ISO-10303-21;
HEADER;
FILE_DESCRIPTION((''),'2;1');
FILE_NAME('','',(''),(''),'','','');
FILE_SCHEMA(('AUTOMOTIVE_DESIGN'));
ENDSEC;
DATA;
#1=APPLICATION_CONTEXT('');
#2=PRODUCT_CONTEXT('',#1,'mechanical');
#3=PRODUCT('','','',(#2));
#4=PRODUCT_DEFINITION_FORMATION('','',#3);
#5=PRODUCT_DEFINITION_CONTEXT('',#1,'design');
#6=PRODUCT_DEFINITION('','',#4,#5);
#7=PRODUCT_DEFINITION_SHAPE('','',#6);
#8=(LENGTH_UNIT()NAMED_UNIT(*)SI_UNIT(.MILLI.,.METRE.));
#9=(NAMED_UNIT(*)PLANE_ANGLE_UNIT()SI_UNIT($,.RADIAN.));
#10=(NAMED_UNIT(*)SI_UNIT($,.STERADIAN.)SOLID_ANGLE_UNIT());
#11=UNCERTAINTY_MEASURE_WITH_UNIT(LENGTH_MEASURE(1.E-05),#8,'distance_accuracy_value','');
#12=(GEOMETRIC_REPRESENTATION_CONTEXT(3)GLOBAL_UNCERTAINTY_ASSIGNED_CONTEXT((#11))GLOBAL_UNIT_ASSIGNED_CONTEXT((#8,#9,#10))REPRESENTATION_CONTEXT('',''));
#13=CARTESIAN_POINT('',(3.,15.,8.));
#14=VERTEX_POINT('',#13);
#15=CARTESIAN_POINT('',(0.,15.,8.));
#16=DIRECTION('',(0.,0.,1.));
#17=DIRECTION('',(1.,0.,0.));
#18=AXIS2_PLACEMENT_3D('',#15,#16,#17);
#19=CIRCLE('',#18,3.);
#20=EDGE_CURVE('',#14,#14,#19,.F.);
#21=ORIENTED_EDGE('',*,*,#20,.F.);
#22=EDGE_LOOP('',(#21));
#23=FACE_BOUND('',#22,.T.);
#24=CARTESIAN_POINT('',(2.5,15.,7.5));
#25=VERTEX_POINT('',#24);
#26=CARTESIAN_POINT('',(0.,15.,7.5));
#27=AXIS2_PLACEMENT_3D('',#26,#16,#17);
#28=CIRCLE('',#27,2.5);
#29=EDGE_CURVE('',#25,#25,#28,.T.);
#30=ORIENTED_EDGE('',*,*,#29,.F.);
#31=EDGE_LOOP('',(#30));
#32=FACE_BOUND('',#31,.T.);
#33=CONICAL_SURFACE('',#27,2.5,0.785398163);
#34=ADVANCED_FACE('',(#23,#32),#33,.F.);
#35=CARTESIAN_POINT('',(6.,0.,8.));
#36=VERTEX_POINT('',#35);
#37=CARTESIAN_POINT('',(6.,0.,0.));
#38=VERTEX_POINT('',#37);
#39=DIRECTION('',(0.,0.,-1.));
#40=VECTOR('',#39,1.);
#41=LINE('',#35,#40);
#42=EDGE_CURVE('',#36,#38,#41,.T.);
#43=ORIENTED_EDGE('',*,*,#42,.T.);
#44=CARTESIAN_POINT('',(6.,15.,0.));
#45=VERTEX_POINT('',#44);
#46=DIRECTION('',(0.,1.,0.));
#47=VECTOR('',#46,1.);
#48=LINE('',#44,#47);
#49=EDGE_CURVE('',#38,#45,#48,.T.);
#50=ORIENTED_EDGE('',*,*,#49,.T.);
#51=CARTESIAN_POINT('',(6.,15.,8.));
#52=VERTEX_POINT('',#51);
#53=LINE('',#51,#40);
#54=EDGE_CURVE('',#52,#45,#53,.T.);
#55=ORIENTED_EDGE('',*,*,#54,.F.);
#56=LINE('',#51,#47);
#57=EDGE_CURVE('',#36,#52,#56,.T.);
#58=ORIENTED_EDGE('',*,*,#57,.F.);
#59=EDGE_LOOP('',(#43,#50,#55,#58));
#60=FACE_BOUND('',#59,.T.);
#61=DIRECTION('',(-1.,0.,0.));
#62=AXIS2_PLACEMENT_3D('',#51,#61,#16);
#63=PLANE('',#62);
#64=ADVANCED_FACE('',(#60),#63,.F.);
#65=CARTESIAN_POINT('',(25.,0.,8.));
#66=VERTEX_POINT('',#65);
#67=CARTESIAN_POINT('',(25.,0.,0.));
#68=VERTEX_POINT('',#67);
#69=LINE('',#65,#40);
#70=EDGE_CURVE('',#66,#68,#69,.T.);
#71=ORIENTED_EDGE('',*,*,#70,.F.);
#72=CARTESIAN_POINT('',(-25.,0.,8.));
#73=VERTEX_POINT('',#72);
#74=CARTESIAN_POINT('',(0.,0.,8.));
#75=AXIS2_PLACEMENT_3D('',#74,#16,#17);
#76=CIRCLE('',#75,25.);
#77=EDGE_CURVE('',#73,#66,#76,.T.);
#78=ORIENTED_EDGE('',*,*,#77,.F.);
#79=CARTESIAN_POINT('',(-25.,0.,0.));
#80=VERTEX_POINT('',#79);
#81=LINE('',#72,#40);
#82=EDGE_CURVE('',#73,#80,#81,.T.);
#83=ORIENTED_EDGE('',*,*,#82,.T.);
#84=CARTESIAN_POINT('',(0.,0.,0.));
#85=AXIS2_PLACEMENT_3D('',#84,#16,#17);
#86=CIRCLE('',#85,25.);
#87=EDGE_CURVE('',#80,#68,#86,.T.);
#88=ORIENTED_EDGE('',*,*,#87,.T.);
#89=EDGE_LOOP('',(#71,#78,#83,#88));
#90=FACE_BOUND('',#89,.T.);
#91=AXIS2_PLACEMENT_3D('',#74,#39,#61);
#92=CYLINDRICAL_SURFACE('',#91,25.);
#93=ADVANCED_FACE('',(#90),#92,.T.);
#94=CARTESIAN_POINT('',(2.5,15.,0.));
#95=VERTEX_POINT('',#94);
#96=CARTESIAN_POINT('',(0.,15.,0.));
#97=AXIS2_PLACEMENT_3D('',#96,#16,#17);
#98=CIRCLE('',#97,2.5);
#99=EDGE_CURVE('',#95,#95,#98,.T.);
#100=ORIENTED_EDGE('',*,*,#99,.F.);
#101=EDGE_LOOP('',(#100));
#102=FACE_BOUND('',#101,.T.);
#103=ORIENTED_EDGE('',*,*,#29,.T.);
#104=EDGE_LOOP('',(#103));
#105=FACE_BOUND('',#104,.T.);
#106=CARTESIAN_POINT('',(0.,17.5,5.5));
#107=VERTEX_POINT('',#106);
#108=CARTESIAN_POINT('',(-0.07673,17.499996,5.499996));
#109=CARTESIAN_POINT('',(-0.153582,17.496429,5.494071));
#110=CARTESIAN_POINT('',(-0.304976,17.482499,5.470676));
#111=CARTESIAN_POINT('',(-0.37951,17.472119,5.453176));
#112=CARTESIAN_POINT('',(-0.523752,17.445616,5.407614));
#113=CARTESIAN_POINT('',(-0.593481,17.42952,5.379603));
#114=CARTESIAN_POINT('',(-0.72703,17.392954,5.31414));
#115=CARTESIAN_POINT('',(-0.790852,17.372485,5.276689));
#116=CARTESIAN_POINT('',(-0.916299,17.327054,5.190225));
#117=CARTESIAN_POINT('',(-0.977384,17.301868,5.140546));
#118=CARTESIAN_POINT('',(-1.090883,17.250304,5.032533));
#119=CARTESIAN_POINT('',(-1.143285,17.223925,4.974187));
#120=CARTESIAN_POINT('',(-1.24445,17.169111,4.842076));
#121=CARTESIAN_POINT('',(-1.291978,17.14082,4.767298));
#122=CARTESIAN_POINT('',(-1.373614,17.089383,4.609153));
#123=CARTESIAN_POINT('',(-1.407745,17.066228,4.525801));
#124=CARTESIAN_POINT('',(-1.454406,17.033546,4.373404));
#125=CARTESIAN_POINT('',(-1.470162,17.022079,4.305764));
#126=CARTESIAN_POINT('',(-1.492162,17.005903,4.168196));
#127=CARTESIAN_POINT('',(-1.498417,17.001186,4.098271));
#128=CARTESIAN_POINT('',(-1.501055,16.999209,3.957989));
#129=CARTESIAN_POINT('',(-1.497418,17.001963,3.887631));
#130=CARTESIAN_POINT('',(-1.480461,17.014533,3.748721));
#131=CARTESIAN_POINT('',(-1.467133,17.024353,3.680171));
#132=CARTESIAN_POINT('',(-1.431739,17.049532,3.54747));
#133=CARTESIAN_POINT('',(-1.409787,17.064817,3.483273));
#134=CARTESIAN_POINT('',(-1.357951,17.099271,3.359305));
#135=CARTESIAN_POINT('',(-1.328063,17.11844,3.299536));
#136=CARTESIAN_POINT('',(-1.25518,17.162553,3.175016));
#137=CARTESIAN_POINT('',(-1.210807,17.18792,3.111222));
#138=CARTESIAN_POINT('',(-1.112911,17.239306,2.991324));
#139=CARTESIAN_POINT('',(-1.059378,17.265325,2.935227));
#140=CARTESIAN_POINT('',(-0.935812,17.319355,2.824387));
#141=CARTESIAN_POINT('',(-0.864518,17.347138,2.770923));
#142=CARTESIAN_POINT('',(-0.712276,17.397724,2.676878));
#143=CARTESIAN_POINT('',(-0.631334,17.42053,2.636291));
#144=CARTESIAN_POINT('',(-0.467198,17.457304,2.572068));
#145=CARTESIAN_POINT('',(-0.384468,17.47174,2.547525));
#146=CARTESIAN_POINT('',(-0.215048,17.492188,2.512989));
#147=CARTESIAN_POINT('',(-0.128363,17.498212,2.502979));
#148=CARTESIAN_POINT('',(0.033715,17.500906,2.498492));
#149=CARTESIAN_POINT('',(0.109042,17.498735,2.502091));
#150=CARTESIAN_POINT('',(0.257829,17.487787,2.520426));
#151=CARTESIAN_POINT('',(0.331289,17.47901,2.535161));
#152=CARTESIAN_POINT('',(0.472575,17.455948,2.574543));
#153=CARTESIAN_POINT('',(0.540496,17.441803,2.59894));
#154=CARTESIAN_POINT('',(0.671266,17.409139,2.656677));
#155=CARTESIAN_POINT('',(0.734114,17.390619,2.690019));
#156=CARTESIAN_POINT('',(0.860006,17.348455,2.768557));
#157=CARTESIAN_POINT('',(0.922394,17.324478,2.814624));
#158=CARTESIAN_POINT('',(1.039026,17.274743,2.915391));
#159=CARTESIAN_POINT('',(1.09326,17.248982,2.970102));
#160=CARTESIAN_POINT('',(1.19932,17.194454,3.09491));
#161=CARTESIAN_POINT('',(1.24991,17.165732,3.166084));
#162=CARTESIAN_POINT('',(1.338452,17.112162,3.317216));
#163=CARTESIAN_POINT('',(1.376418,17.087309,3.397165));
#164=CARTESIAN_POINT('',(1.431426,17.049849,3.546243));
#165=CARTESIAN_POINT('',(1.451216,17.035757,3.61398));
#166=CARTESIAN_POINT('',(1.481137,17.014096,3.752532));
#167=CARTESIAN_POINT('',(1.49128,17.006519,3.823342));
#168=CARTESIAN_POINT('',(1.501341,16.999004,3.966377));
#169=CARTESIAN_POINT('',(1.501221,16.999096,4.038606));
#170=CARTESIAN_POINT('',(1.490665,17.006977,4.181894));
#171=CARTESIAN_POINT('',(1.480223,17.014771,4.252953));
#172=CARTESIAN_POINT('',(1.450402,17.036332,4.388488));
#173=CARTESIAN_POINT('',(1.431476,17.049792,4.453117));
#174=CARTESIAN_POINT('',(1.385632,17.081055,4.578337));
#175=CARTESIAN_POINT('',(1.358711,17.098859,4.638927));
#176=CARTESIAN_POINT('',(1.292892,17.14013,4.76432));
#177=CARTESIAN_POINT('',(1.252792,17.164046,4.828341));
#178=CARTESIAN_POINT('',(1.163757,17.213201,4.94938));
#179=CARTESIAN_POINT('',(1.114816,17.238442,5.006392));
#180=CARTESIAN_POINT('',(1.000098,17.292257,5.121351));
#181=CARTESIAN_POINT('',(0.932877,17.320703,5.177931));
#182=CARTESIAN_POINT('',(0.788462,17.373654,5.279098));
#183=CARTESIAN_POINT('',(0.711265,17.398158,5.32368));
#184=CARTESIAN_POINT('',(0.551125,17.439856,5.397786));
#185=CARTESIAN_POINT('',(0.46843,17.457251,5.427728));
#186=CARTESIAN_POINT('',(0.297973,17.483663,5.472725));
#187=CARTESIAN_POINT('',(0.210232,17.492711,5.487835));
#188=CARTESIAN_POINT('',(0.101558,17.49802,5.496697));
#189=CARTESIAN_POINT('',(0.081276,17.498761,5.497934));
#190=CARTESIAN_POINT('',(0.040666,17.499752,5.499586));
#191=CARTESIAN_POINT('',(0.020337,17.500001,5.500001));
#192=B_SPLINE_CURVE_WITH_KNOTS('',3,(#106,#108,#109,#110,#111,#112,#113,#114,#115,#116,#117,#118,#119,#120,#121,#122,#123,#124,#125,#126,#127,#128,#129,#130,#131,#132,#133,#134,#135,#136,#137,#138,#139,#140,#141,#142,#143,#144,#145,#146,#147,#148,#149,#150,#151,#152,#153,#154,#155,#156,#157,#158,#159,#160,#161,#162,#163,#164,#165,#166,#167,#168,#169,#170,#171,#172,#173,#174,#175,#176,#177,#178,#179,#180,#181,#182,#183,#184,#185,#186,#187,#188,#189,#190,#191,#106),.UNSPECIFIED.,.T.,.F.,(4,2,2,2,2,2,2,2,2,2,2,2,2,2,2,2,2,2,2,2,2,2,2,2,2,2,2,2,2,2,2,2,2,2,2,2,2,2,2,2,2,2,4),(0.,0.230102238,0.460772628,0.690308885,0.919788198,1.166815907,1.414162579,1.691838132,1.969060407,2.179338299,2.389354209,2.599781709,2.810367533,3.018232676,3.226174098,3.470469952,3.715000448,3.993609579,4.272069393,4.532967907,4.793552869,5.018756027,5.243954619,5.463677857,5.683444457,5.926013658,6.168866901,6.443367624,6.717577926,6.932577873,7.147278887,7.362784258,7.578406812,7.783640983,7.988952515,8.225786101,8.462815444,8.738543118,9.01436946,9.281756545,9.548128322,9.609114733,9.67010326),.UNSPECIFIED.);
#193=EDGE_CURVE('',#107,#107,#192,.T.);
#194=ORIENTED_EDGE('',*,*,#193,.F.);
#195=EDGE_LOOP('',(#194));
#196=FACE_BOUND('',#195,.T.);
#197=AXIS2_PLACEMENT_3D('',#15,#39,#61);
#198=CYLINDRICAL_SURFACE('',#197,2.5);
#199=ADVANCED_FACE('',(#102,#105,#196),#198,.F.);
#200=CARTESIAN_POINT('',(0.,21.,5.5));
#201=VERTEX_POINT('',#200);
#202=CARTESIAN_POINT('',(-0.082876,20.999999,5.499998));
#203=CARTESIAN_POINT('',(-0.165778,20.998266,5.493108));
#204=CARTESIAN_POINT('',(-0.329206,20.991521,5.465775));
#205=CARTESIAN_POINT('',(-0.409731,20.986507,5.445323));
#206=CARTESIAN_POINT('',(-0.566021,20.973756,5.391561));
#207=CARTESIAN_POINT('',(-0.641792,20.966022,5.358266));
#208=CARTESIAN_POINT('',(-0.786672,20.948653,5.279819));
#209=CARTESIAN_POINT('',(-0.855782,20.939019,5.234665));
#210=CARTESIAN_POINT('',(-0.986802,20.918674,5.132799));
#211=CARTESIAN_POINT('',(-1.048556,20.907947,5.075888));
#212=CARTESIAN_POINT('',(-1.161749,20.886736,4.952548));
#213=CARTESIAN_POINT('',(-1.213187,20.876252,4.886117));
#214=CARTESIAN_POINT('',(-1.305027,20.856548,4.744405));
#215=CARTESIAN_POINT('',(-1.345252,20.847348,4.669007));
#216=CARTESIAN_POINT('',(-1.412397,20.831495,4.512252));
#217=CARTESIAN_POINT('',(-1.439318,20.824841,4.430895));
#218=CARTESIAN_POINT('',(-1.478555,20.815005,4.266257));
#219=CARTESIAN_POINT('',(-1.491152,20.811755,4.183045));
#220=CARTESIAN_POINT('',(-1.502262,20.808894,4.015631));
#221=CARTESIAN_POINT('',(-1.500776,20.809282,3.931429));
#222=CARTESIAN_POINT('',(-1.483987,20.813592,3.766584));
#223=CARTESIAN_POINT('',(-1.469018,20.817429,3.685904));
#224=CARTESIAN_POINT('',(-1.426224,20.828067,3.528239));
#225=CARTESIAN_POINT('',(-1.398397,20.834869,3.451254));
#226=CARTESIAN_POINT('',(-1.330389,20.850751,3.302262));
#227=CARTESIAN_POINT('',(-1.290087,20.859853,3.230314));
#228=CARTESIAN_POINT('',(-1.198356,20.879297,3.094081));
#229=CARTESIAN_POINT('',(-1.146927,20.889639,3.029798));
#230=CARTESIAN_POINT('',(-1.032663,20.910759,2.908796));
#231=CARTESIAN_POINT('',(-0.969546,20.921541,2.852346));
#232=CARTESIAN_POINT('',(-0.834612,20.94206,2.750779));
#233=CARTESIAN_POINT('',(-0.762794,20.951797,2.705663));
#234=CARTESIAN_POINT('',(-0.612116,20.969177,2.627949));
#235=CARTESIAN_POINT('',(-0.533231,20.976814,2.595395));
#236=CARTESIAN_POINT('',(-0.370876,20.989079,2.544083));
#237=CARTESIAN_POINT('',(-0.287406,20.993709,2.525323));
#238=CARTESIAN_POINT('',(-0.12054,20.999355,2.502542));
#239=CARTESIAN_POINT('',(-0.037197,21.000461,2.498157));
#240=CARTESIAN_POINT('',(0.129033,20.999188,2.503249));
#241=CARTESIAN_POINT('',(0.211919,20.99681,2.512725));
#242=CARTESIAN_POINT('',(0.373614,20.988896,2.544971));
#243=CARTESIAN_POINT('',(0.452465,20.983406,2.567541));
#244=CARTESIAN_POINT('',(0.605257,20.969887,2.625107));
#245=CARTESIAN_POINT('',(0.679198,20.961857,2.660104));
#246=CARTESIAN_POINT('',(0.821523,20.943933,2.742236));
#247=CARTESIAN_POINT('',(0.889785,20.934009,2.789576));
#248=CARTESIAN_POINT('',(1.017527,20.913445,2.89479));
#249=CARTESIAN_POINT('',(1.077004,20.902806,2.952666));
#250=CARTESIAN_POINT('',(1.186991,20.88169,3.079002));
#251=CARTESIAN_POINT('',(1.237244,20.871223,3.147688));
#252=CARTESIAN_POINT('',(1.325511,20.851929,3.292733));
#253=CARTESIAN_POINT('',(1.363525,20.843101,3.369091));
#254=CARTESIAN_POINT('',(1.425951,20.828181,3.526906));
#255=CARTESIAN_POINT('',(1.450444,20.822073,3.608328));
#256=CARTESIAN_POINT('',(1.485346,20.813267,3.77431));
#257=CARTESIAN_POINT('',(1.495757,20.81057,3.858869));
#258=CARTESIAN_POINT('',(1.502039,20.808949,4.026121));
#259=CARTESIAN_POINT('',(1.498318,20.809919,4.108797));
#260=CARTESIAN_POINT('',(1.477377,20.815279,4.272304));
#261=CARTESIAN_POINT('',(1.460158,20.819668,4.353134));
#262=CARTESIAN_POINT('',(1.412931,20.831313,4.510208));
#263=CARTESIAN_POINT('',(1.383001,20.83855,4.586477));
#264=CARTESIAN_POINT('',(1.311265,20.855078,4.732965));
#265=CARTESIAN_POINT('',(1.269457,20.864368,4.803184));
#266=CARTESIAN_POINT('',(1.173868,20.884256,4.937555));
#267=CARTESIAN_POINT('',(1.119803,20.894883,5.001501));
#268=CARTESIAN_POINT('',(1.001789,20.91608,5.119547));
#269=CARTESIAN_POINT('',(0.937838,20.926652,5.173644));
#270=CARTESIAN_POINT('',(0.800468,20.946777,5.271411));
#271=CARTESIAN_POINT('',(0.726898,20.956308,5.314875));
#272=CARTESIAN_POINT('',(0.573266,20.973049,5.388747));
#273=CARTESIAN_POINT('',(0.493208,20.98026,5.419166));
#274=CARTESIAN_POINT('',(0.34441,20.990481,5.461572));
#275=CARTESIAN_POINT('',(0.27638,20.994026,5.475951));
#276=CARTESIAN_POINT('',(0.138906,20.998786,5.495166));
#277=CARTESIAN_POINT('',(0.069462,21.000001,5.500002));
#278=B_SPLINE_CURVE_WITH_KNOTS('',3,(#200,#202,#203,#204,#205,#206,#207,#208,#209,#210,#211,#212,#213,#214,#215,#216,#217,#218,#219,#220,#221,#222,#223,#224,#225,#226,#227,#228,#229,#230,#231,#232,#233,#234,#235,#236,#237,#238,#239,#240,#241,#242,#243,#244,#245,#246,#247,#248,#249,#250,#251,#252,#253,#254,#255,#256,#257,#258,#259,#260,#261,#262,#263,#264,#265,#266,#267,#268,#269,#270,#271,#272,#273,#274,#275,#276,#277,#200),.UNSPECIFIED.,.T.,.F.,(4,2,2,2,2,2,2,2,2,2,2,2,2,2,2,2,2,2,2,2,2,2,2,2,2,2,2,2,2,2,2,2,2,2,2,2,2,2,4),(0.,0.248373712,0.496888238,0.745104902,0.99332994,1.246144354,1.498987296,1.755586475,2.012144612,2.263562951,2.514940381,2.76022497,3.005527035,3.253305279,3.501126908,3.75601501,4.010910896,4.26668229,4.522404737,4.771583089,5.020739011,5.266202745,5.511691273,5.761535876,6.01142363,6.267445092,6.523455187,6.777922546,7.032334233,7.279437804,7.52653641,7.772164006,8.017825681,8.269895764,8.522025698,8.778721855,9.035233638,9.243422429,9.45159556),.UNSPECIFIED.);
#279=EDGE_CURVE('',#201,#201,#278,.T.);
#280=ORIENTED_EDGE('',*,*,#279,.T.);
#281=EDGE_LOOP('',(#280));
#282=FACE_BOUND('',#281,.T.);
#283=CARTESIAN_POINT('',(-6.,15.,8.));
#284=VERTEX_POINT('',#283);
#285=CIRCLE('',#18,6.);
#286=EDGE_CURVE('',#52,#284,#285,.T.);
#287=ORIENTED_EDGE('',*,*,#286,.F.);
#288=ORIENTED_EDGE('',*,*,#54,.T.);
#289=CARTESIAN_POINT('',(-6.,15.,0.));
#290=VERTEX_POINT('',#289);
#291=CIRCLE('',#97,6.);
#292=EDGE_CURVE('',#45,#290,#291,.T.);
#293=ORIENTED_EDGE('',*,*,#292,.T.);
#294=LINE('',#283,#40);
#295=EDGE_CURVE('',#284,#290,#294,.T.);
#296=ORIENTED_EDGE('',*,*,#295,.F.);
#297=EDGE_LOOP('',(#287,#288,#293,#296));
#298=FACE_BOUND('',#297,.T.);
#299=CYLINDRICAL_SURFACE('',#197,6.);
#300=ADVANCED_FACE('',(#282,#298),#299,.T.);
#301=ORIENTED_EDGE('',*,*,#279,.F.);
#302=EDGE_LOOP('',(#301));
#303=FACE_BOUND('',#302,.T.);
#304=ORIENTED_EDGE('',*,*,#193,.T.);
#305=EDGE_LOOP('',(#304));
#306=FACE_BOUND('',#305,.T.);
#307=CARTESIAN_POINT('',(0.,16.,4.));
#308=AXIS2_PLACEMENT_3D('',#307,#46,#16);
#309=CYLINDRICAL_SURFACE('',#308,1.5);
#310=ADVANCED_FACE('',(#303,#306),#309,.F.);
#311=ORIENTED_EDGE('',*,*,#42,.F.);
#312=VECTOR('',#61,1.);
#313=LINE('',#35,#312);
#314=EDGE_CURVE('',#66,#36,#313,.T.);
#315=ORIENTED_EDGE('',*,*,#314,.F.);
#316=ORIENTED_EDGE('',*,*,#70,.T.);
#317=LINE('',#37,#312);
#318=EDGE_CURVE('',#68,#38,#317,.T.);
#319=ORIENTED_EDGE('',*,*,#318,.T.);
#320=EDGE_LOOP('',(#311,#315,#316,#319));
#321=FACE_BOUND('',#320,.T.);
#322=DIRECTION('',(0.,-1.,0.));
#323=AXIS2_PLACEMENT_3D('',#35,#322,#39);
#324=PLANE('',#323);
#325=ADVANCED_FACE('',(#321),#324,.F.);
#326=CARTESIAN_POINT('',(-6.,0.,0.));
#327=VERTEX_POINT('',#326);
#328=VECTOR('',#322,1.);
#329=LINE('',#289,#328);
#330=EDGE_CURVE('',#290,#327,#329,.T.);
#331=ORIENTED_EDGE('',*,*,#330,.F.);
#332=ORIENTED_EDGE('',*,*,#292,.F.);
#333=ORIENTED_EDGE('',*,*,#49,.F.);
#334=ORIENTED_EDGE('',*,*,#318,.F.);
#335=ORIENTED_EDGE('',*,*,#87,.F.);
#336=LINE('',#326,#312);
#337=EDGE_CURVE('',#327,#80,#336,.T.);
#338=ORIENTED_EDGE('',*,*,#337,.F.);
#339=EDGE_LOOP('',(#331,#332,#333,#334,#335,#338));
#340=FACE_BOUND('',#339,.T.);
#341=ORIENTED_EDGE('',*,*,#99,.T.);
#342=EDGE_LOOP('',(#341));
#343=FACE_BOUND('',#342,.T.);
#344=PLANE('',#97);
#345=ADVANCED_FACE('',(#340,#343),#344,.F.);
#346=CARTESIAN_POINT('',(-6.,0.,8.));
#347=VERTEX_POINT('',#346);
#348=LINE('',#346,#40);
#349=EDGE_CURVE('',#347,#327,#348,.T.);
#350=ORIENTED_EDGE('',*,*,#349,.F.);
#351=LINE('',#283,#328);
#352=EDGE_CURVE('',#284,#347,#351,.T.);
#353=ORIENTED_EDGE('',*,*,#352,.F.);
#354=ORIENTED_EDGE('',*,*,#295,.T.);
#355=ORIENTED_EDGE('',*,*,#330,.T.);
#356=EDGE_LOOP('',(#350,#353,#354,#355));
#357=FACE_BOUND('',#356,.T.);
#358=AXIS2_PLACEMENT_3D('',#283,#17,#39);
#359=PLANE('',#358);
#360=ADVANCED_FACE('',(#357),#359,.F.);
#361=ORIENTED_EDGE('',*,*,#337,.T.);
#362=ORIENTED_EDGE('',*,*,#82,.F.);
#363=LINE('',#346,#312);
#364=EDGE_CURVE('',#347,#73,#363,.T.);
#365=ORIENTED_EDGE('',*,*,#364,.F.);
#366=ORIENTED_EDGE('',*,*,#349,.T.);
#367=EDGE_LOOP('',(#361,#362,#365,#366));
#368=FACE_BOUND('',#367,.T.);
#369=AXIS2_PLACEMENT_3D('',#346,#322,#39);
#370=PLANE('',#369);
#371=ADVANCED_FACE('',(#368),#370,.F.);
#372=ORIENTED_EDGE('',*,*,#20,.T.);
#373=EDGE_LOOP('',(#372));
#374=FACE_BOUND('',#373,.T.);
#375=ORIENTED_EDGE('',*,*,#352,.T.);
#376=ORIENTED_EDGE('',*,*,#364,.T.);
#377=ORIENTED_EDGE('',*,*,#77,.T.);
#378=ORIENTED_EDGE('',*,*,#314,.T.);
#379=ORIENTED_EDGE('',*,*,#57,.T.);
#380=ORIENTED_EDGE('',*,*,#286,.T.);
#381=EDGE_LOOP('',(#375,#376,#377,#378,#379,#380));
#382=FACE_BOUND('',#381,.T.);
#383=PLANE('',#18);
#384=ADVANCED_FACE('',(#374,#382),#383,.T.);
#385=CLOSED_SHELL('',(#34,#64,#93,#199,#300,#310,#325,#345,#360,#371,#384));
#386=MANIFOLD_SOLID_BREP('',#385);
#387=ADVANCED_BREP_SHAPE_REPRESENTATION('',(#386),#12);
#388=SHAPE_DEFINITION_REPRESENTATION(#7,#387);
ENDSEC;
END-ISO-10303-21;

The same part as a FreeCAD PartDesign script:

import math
import FreeCAD as App
import Part
import Sketcher
from FreeCAD import Vector
Q = App.Units.Quantity


def edges_at(feature, points):
    """Names of the edges that pass closest to the given points."""
    edges = feature.Shape.Edges
    near = lambda p: min(range(len(edges)), key=lambda i: edges[i].distToShape(Part.Vertex(*p))[0])
    return sorted({f"Edge{near(p) + 1}" for p in points})

doc = App.newDocument("Part")
body = doc.addObject("PartDesign::Body", "Body")

sketch1 = body.newObject("Sketcher::SketchObject", "Sketch")
sketch1.AttachmentSupport = (doc.getObject("XY_Plane"), [""])
sketch1.MapMode = "FlatFace"
sketch1.addGeometry(Part.LineSegment(Vector(-6, 15, 0), Vector(-6, 0, 0)), False)
sketch1.addGeometry(Part.LineSegment(Vector(-6, 0, 0), Vector(-25, 0, 0)), False)
sketch1.addGeometry(Part.ArcOfCircle(Part.Circle(Vector(0, 0, 0), Vector(0, 0, 1), 25), math.radians(180), math.radians(360)), False)
sketch1.addGeometry(Part.LineSegment(Vector(25, 0, 0), Vector(6, 0, 0)), False)
sketch1.addGeometry(Part.LineSegment(Vector(6, 0, 0), Vector(6, 15, 0)), False)
sketch1.addGeometry(Part.ArcOfCircle(Part.Circle(Vector(0, 15, 0), Vector(0, 0, 1), 6), math.radians(0), math.radians(180)), False)
sketch1.addGeometry(Part.Circle(Vector(0, 15, 0), Vector(0, 0, 1), 2.5), False)
sketch1.addConstraint(Sketcher.Constraint("Coincident", 0, 2, 1, 1))
sketch1.addConstraint(Sketcher.Constraint("Coincident", 1, 2, 2, 1))
sketch1.addConstraint(Sketcher.Constraint("Coincident", 2, 2, 3, 1))
sketch1.addConstraint(Sketcher.Constraint("Coincident", 3, 2, 4, 1))
sketch1.addConstraint(Sketcher.Constraint("Tangent", 4, 2, 5, 1))
sketch1.addConstraint(Sketcher.Constraint("Tangent", 5, 2, 0, 1))
sketch1.addConstraint(Sketcher.Constraint("Vertical", 0))
sketch1.addConstraint(Sketcher.Constraint("Horizontal", 1))
sketch1.addConstraint(Sketcher.Constraint("Horizontal", 3))
sketch1.addConstraint(Sketcher.Constraint("Vertical", 4))
sketch1.addConstraint(Sketcher.Constraint("Coincident", 2, 3, -1, 1))
sketch1.addConstraint(Sketcher.Constraint("Coincident", 6, 3, 5, 3))
sketch1.addConstraint(Sketcher.Constraint("Symmetric", 0, 2, 3, 2, -1, 1))
sketch1.addConstraint(Sketcher.Constraint("PointOnObject", 0, 2, -1))
sketch1.addConstraint(Sketcher.Constraint("Diameter", 6, Q("5 mm")))
sketch1.addConstraint(Sketcher.Constraint("Radius", 2, Q("25 mm")))
sketch1.addConstraint(Sketcher.Constraint("Radius", 5, Q("6 mm")))
sketch1.addConstraint(Sketcher.Constraint("DistanceY", 0, 2, 0, 1, Q("15 mm")))
pad1 = body.newObject("PartDesign::Pad", "Pad")
pad1.Profile = sketch1
pad1.Length = 8
doc.recompute()

chamfer = body.newObject("PartDesign::Chamfer", "Chamfer")
chamfer.Base = (pad1, edges_at(pad1, [(-2.5, 15, 8)]))
chamfer.Size = 0.5

sketch2 = body.newObject("Sketcher::SketchObject", "Sketch001")
sketch2.AttachmentSupport = (doc.getObject("XZ_Plane"), [""])
sketch2.MapMode = "FlatFace"
sketch2.AttachmentOffset = App.Placement(Vector(0, 0, -21), App.Rotation())
sketch2.addGeometry(Part.Circle(Vector(0, 4, 0), Vector(0, 0, 1), 1.5), False)
sketch2.addConstraint(Sketcher.Constraint("PointOnObject", 0, 3, -2))
sketch2.addConstraint(Sketcher.Constraint("Diameter", 0, Q("3 mm")))
sketch2.addConstraint(Sketcher.Constraint("DistanceY", -1, 1, 0, 3, Q("4 mm")))
pocket1 = body.newObject("PartDesign::Pocket", "Pocket")
pocket1.Profile = sketch2
pocket1.Length = 5
pocket1.Reversed = True

doc.recompute()
